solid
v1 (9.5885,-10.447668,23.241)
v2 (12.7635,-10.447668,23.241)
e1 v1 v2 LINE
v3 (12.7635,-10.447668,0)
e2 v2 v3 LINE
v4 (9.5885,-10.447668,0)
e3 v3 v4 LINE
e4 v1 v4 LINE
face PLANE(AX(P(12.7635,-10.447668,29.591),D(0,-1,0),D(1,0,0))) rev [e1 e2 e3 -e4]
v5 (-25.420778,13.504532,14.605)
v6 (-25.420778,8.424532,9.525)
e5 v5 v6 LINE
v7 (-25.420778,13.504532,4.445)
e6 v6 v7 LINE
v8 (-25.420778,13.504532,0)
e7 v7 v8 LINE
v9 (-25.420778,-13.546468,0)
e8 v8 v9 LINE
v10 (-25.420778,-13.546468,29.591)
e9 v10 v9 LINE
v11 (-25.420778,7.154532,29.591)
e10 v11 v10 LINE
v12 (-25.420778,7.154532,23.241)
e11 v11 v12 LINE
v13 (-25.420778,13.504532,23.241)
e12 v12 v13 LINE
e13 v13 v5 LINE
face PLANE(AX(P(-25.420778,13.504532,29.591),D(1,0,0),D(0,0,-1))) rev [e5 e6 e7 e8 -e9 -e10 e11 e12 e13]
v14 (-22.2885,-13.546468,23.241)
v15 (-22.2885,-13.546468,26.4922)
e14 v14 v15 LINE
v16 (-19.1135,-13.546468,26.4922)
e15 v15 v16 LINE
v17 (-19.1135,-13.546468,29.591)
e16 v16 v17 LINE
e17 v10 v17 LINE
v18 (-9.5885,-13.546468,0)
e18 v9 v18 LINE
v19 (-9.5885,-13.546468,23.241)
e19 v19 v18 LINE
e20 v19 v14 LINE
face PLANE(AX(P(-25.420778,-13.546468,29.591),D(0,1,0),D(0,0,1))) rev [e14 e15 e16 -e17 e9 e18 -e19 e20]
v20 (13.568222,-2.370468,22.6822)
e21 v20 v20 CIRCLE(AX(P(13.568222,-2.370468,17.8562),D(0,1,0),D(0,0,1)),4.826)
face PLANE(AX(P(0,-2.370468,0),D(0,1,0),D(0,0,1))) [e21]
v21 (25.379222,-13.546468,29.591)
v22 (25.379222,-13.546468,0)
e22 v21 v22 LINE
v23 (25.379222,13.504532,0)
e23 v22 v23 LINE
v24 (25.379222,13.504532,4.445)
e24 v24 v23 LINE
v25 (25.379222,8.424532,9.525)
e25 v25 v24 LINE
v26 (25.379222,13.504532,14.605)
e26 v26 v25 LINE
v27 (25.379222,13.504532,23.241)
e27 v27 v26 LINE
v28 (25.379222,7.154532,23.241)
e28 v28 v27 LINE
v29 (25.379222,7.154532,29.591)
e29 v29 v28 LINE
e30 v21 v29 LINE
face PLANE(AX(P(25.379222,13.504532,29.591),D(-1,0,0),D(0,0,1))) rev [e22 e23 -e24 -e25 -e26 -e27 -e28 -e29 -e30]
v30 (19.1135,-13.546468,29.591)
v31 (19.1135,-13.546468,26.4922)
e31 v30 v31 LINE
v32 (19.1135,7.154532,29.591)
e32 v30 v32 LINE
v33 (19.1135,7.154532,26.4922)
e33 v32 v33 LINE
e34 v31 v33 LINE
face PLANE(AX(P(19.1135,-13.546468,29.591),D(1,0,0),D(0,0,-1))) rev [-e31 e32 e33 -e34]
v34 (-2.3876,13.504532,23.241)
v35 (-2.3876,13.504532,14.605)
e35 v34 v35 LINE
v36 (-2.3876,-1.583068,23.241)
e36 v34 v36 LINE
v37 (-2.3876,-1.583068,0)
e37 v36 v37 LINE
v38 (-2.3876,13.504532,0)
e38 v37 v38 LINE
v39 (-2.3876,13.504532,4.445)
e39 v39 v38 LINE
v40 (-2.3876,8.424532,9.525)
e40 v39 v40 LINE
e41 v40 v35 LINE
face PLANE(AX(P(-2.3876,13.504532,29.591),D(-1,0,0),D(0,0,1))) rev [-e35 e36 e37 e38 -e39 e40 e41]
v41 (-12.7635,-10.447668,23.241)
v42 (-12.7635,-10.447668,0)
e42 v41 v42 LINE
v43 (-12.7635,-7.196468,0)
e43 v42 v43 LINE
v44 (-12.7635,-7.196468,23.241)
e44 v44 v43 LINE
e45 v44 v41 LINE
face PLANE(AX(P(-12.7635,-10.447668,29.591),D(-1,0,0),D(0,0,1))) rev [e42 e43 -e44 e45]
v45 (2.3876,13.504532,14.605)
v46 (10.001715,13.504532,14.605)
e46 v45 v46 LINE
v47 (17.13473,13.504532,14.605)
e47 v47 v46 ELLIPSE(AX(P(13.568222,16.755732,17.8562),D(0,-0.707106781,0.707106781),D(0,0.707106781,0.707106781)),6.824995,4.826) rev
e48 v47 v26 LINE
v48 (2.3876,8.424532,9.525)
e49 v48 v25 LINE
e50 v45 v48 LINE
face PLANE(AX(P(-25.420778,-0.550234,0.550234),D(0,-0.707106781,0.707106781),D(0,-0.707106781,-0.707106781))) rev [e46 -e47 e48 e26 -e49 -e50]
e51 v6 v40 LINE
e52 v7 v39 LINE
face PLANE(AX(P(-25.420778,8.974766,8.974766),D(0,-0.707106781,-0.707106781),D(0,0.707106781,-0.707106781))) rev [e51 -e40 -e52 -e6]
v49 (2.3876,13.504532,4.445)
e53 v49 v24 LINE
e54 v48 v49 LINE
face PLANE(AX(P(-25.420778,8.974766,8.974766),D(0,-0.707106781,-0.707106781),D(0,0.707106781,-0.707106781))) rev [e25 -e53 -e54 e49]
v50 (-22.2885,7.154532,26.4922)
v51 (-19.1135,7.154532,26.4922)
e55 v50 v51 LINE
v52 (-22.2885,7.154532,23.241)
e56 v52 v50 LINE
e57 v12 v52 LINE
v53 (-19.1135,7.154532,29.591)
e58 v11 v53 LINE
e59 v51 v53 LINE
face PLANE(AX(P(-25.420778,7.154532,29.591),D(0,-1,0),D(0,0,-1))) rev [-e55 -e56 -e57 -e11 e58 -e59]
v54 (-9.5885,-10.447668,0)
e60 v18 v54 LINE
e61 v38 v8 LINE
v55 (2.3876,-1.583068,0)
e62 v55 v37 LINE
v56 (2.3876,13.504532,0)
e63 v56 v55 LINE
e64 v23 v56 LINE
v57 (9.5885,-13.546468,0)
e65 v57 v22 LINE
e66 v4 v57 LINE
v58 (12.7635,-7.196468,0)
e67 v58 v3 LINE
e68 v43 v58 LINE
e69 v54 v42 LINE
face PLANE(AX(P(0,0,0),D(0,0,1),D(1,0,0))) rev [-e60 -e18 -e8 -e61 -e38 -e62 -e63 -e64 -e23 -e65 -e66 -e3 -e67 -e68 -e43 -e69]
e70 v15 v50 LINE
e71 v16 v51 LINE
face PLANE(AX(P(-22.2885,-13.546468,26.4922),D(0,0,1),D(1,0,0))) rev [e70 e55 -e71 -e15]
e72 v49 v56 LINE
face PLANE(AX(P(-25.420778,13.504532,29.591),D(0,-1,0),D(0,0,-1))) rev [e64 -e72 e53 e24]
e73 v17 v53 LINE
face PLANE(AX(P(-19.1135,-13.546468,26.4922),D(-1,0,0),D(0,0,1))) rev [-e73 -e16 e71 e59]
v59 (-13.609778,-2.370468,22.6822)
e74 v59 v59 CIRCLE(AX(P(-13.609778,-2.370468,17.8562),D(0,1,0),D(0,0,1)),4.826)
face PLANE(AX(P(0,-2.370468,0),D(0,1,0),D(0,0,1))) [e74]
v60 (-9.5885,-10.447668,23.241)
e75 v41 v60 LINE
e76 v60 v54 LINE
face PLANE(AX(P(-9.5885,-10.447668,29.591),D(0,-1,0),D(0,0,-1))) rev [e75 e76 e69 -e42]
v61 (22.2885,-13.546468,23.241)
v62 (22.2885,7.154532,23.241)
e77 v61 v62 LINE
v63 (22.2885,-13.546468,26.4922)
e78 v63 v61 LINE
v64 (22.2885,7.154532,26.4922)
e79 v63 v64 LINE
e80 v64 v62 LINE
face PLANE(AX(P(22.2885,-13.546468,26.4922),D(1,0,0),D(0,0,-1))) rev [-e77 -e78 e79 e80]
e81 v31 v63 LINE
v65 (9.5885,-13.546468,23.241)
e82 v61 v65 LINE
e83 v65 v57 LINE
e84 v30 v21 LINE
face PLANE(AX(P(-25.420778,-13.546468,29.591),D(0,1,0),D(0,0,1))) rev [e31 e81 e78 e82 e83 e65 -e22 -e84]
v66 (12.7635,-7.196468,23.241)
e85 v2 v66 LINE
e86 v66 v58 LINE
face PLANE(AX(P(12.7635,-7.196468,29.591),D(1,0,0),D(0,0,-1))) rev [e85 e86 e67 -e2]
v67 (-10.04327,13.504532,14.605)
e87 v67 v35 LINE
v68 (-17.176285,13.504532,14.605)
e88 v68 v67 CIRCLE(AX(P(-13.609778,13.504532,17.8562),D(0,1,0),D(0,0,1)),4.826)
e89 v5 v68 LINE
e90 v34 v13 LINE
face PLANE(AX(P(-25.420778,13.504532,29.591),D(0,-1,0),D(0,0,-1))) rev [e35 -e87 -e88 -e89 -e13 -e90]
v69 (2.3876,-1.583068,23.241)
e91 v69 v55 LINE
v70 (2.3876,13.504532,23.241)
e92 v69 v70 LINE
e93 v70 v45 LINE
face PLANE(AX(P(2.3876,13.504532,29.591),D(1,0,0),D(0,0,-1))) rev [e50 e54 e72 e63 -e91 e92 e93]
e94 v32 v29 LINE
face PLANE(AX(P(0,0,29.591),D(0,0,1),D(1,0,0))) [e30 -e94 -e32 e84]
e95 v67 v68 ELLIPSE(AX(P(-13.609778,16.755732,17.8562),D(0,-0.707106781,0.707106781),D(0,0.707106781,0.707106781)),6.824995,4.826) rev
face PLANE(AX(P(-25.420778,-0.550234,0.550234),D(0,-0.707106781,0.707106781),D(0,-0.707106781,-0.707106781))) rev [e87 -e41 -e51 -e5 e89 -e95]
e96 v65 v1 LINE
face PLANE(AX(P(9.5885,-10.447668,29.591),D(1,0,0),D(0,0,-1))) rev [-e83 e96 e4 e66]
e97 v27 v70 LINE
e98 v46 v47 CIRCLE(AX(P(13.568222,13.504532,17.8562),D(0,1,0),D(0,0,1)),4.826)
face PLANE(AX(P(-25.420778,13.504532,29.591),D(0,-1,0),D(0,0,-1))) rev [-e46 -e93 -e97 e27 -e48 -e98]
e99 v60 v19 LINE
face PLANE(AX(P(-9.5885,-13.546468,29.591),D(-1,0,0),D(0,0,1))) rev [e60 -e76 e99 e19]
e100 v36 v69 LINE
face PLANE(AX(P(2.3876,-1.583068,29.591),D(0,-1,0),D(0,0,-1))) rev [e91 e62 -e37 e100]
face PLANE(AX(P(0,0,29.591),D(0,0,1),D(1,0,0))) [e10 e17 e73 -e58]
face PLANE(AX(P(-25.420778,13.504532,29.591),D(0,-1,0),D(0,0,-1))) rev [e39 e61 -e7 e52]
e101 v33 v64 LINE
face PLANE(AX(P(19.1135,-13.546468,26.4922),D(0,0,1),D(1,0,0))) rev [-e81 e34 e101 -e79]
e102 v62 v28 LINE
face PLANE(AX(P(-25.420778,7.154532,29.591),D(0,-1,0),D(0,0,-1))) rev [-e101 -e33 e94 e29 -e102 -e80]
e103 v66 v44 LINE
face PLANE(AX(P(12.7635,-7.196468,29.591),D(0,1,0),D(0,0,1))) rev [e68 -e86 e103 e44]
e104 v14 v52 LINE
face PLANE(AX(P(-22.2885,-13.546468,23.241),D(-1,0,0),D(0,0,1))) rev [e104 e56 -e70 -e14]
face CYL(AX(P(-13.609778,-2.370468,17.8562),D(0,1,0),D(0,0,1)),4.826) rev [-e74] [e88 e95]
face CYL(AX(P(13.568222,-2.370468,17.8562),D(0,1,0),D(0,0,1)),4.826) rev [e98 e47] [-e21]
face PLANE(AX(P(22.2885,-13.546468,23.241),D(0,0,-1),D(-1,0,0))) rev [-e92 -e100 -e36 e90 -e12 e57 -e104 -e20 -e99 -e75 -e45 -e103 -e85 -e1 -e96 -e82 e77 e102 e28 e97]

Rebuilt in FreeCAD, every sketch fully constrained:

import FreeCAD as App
import Part
import Sketcher

V = App.Vector
Q = App.Units.Quantity

doc = App.newDocument("Part")
body = doc.addObject("PartDesign::Body", "Body")

# Sketch on XY plane
sketch1 = body.newObject("Sketcher::SketchObject", "Sketch")
sketch1.AttachmentSupport = (doc.getObject("XY_Plane"), [""])
sketch1.MapMode = "FlatFace"
sketch1.addGeometry([
    Part.LineSegment(V(-25, 14, 0), V(-25, -14, 0)),
    Part.LineSegment(V(-25, -14, 0), V(25, -14, 0)),
    Part.LineSegment(V(25, -14, 0), V(25, 14, 0)),
    Part.LineSegment(V(25, 14, 0), V(-25, 14, 0)),
], False)
sketch1.addConstraint([
    Sketcher.Constraint("Coincident", 0, 2, 1, 1),
    Sketcher.Constraint("Coincident", 1, 2, 2, 1),
    Sketcher.Constraint("Coincident", 2, 2, 3, 1),
    Sketcher.Constraint("Coincident", 3, 2, 0, 1),
    Sketcher.Constraint("Vertical", 0),
    Sketcher.Constraint("Horizontal", 1),
    Sketcher.Constraint("Vertical", 2),
    Sketcher.Constraint("Horizontal", 3),
    Sketcher.Constraint("DistanceX", 1, 1, 1, 2, Q("2 in")),
    Sketcher.Constraint("DistanceY", 0, 2, 0, 1, Q("1.065 in")),
    Sketcher.Constraint("DistanceX", 0, 2, -1, 1, 25.420778),
    Sketcher.Constraint("DistanceY", 0, 2, -1, 1, 13.546468),
])
pad1 = body.newObject("PartDesign::Pad", "Pad")
pad1.Profile = sketch1
pad1.Length = Q("1.165 in")

# Sketch on XY plane
sketch2 = body.newObject("Sketcher::SketchObject", "Sketch001")
sketch2.AttachmentSupport = (doc.getObject("XY_Plane"), [""])
sketch2.MapMode = "FlatFace"
sketch2.addGeometry([
    Part.LineSegment(V(-12.8, -7.2, 0), V(12.8, -7.2, 0)),  # 0
    Part.LineSegment(V(12.8, -7.2, 0), V(12.8, -10.4, 0)),  # 1
    Part.LineSegment(V(12.8, -10.4, 0), V(9.6, -10.4, 0)),  # 2
    Part.LineSegment(V(9.6, -10.4, 0), V(9.6, -13.5, 0)),  # 3
    Part.LineSegment(V(9.6, -13.5, 0), V(-9.6, -13.5, 0)),  # 4
    Part.LineSegment(V(-9.6, -13.5, 0), V(-9.6, -10.4, 0)),  # 5
    Part.LineSegment(V(-9.6, -10.4, 0), V(-12.8, -10.4, 0)),  # 6
    Part.LineSegment(V(-12.8, -10.4, 0), V(-12.8, -7.2, 0)),  # 7
], False)
sketch2.addConstraint([
    Sketcher.Constraint("Coincident", 0, 2, 1, 1),
    Sketcher.Constraint("Coincident", 1, 2, 2, 1),
    Sketcher.Constraint("Coincident", 2, 2, 3, 1),
    Sketcher.Constraint("Coincident", 3, 2, 4, 1),
    Sketcher.Constraint("Coincident", 4, 2, 5, 1),
    Sketcher.Constraint("Coincident", 5, 2, 6, 1),
    Sketcher.Constraint("Coincident", 6, 2, 7, 1),
    Sketcher.Constraint("Coincident", 7, 2, 0, 1),
    Sketcher.Constraint("Horizontal", 0),
    Sketcher.Constraint("Vertical", 1),
    Sketcher.Constraint("Horizontal", 2),
    Sketcher.Constraint("Vertical", 3),
    Sketcher.Constraint("Horizontal", 4),
    Sketcher.Constraint("Vertical", 5),
    Sketcher.Constraint("Horizontal", 6),
    Sketcher.Constraint("Vertical", 7),
    Sketcher.Constraint("Symmetric", 2, 2, 5, 2, -2),
    Sketcher.Constraint("Equal", 2, 6),
    Sketcher.Constraint("DistanceX", 0, 1, 0, 2, Q("1.005 in")),
    Sketcher.Constraint("DistanceX", 2, 2, 2, 1, Q("0.125 in")),
    Sketcher.Constraint("DistanceY", 1, 2, 1, 1, Q("0.128 in")),
    Sketcher.Constraint("DistanceY", 3, 2, 3, 1, Q("0.122 in")),
    Sketcher.Constraint("DistanceY", 0, 2, -1, 1, 7.196468),
])
pocket1 = body.newObject("PartDesign::Pocket", "Pocket")
pocket1.Profile = sketch2
pocket1.Type = "ThroughAll"
pocket1.Reversed = True

# Sketch on XY plane
sketch3 = body.newObject("Sketcher::SketchObject", "Sketch002")
sketch3.AttachmentSupport = (doc.getObject("XY_Plane"), [""])
sketch3.MapMode = "FlatFace"
sketch3.addGeometry([
    Part.LineSegment(V(2.4, 13.5, 0), V(2.4, -1.6, 0)),
    Part.LineSegment(V(2.4, -1.6, 0), V(-2.4, -1.6, 0)),
    Part.LineSegment(V(-2.4, -1.6, 0), V(-2.4, 13.5, 0)),
    Part.LineSegment(V(-2.4, 13.5, 0), V(2.4, 13.5, 0)),
], False)
sketch3.addConstraint([
    Sketcher.Constraint("Coincident", 0, 2, 1, 1),
    Sketcher.Constraint("Coincident", 1, 2, 2, 1),
    Sketcher.Constraint("Coincident", 2, 2, 3, 1),
    Sketcher.Constraint("Coincident", 3, 2, 0, 1),
    Sketcher.Constraint("Vertical", 0),
    Sketcher.Constraint("Horizontal", 1),
    Sketcher.Constraint("Vertical", 2),
    Sketcher.Constraint("Horizontal", 3),
    Sketcher.Constraint("DistanceX", 1, 2, 1, 1, Q("0.188 in")),
    Sketcher.Constraint("DistanceY", 0, 2, 0, 1, Q("0.594 in")),
    Sketcher.Constraint("DistanceX", -1, 1, 0, 2, Q("0.094 in")),
    Sketcher.Constraint("DistanceY", 0, 2, -1, 1, 1.583068),
])
pocket2 = body.newObject("PartDesign::Pocket", "Pocket001")
pocket2.Profile = sketch3
pocket2.Type = "ThroughAll"
pocket2.Reversed = True

# Sketch on XZ plane
sketch4 = body.newObject("Sketcher::SketchObject", "Sketch003")
sketch4.AttachmentSupport = (doc.getObject("XZ_Plane"), [""])
sketch4.MapMode = "FlatFace"
sketch4.AttachmentOffset = App.Placement(V(0, 0, -13.504532), App.Rotation())
sketch4.addGeometry([
    Part.LineSegment(V(-19.1, 29.6, 0), V(19.1, 29.6, 0)),  # 0
    Part.LineSegment(V(19.1, 29.6, 0), V(19.1, 26.5, 0)),  # 1
    Part.LineSegment(V(19.1, 26.5, 0), V(22.3, 26.5, 0)),  # 2
    Part.LineSegment(V(22.3, 26.5, 0), V(22.3, 23.2, 0)),  # 3
    Part.LineSegment(V(22.3, 23.2, 0), V(-22.3, 23.2, 0)),  # 4
    Part.LineSegment(V(-22.3, 23.2, 0), V(-22.3, 26.5, 0)),  # 5
    Part.LineSegment(V(-22.3, 26.5, 0), V(-19.1, 26.5, 0)),  # 6
    Part.LineSegment(V(-19.1, 26.5, 0), V(-19.1, 29.6, 0)),  # 7
], False)
sketch4.addConstraint([
    Sketcher.Constraint("Coincident", 0, 2, 1, 1),
    Sketcher.Constraint("Coincident", 1, 2, 2, 1),
    Sketcher.Constraint("Coincident", 2, 2, 3, 1),
    Sketcher.Constraint("Coincident", 3, 2, 4, 1),
    Sketcher.Constraint("Coincident", 4, 2, 5, 1),
    Sketcher.Constraint("Coincident", 5, 2, 6, 1),
    Sketcher.Constraint("Coincident", 6, 2, 7, 1),
    Sketcher.Constraint("Coincident", 7, 2, 0, 1),
    Sketcher.Constraint("Horizontal", 0),
    Sketcher.Constraint("Vertical", 1),
    Sketcher.Constraint("Horizontal", 2),
    Sketcher.Constraint("Vertical", 3),
    Sketcher.Constraint("Horizontal", 4),
    Sketcher.Constraint("Vertical", 5),
    Sketcher.Constraint("Horizontal", 6),
    Sketcher.Constraint("Vertical", 7),
    Sketcher.Constraint("Symmetric", 2, 2, 5, 2, -2),
    Sketcher.Constraint("Equal", 2, 6),
    Sketcher.Constraint("DistanceX", 0, 1, 0, 2, Q("1.505 in")),
    Sketcher.Constraint("DistanceX", 2, 1, 2, 2, Q("0.125 in")),
    Sketcher.Constraint("DistanceY", 1, 2, 1, 1, Q("0.122 in")),
    Sketcher.Constraint("DistanceY", 3, 2, 3, 1, Q("0.128 in")),
    Sketcher.Constraint("DistanceY", -1, 1, 0, 2, Q("1.165 in")),
])
pocket3 = body.newObject("PartDesign::Pocket", "Pocket002")
pocket3.Profile = sketch4
pocket3.Type = "ThroughAll"
pocket3.Reversed = True

# Sketch on XZ plane
sketch5 = body.newObject("Sketcher::SketchObject", "Sketch004")
sketch5.AttachmentSupport = (doc.getObject("XZ_Plane"), [""])
sketch5.MapMode = "FlatFace"
sketch5.AttachmentOffset = App.Placement(V(0, 0, -13.504532), App.Rotation())
sketch5.addGeometry([
    Part.Circle(V(-13.6, 17.9, 0), V(0, 0, 1), 4.8),
    Part.Circle(V(13.6, 17.9, 0), V(0, 0, 1), 4.8),
], False)
sketch5.addConstraint([
    Sketcher.Constraint("Equal", 0, 1),
    Sketcher.Constraint("Horizontal", 0, 3, 1, 3),
    Sketcher.Constraint("Diameter", 0, Q("0.38 in")),
    Sketcher.Constraint("DistanceX", 0, 3, 1, 3, Q("1.07 in")),
    Sketcher.Constraint("DistanceY", -1, 1, 0, 3, Q("0.703 in")),
    Sketcher.Constraint("DistanceX", 0, 3, -1, 1, 13.609778),
])
pocket4 = body.newObject("PartDesign::Pocket", "Pocket003")
pocket4.Profile = sketch5
pocket4.Length = Q("0.625 in")
pocket4.Reversed = True

# Sketch on YZ plane
sketch6 = body.newObject("Sketcher::SketchObject", "Sketch005")
sketch6.AttachmentSupport = (doc.getObject("YZ_Plane"), [""])
sketch6.MapMode = "FlatFace"
sketch6.AttachmentOffset = App.Placement(V(0, 0, 25.379222), App.Rotation())
sketch6.addGeometry([
    Part.LineSegment(V(14, 30, 0), V(7, 30, 0)),
    Part.LineSegment(V(7, 30, 0), V(7, 23, 0)),
    Part.LineSegment(V(7, 23, 0), V(14, 23, 0)),
    Part.LineSegment(V(14, 23, 0), V(14, 30, 0)),
], False)
sketch6.addConstraint([
    Sketcher.Constraint("Coincident", 0, 2, 1, 1),
    Sketcher.Constraint("Coincident", 1, 2, 2, 1),
    Sketcher.Constraint("Coincident", 2, 2, 3, 1),
    Sketcher.Constraint("Coincident", 3, 2, 0, 1),
    Sketcher.Constraint("Horizontal", 0),
    Sketcher.Constraint("Vertical", 1),
    Sketcher.Constraint("Horizontal", 2),
    Sketcher.Constraint("Vertical", 3),
    Sketcher.Constraint("Equal", 2, 1),
    Sketcher.Constraint("DistanceX", 0, 2, 0, 1, Q("0.25 in")),
    Sketcher.Constraint("DistanceY", -1, 1, 0, 2, Q("1.165 in")),
    Sketcher.Constraint("DistanceX", -1, 1, 0, 2, 7.154532),
])
pocket5 = body.newObject("PartDesign::Pocket", "Pocket004")
pocket5.Profile = sketch6
pocket5.Type = "ThroughAll"

# Sketch on YZ plane
sketch7 = body.newObject("Sketcher::SketchObject", "Sketch006")
sketch7.AttachmentSupport = (doc.getObject("YZ_Plane"), [""])
sketch7.MapMode = "FlatFace"
sketch7.AttachmentOffset = App.Placement(V(0, 0, 25.379222), App.Rotation())
sketch7.addGeometry([
    Part.LineSegment(V(8, 10, 0), V(14, 4, 0)),
    Part.LineSegment(V(14, 4, 0), V(14, 15, 0)),
    Part.LineSegment(V(14, 15, 0), V(8, 10, 0)),
], False)
sketch7.addConstraint([
    Sketcher.Constraint("Coincident", 0, 2, 1, 1),
    Sketcher.Constraint("Coincident", 1, 2, 2, 1),
    Sketcher.Constraint("Coincident", 2, 2, 0, 1),
    Sketcher.Constraint("Vertical", 1),
    Sketcher.Constraint("Perpendicular", 0, 2),
    Sketcher.Constraint("Equal", 0, 2),
    Sketcher.Constraint("DistanceY", 1, 1, 1, 2, Q("0.4 in")),
    Sketcher.Constraint("DistanceY", -1, 1, 0, 2, Q("0.175 in")),
    Sketcher.Constraint("DistanceX", -1, 1, 0, 2, 13.504532),
])
pocket6 = body.newObject("PartDesign::Pocket", "Pocket005")
pocket6.Profile = sketch7
pocket6.Type = "ThroughAll"

doc.recompute()
